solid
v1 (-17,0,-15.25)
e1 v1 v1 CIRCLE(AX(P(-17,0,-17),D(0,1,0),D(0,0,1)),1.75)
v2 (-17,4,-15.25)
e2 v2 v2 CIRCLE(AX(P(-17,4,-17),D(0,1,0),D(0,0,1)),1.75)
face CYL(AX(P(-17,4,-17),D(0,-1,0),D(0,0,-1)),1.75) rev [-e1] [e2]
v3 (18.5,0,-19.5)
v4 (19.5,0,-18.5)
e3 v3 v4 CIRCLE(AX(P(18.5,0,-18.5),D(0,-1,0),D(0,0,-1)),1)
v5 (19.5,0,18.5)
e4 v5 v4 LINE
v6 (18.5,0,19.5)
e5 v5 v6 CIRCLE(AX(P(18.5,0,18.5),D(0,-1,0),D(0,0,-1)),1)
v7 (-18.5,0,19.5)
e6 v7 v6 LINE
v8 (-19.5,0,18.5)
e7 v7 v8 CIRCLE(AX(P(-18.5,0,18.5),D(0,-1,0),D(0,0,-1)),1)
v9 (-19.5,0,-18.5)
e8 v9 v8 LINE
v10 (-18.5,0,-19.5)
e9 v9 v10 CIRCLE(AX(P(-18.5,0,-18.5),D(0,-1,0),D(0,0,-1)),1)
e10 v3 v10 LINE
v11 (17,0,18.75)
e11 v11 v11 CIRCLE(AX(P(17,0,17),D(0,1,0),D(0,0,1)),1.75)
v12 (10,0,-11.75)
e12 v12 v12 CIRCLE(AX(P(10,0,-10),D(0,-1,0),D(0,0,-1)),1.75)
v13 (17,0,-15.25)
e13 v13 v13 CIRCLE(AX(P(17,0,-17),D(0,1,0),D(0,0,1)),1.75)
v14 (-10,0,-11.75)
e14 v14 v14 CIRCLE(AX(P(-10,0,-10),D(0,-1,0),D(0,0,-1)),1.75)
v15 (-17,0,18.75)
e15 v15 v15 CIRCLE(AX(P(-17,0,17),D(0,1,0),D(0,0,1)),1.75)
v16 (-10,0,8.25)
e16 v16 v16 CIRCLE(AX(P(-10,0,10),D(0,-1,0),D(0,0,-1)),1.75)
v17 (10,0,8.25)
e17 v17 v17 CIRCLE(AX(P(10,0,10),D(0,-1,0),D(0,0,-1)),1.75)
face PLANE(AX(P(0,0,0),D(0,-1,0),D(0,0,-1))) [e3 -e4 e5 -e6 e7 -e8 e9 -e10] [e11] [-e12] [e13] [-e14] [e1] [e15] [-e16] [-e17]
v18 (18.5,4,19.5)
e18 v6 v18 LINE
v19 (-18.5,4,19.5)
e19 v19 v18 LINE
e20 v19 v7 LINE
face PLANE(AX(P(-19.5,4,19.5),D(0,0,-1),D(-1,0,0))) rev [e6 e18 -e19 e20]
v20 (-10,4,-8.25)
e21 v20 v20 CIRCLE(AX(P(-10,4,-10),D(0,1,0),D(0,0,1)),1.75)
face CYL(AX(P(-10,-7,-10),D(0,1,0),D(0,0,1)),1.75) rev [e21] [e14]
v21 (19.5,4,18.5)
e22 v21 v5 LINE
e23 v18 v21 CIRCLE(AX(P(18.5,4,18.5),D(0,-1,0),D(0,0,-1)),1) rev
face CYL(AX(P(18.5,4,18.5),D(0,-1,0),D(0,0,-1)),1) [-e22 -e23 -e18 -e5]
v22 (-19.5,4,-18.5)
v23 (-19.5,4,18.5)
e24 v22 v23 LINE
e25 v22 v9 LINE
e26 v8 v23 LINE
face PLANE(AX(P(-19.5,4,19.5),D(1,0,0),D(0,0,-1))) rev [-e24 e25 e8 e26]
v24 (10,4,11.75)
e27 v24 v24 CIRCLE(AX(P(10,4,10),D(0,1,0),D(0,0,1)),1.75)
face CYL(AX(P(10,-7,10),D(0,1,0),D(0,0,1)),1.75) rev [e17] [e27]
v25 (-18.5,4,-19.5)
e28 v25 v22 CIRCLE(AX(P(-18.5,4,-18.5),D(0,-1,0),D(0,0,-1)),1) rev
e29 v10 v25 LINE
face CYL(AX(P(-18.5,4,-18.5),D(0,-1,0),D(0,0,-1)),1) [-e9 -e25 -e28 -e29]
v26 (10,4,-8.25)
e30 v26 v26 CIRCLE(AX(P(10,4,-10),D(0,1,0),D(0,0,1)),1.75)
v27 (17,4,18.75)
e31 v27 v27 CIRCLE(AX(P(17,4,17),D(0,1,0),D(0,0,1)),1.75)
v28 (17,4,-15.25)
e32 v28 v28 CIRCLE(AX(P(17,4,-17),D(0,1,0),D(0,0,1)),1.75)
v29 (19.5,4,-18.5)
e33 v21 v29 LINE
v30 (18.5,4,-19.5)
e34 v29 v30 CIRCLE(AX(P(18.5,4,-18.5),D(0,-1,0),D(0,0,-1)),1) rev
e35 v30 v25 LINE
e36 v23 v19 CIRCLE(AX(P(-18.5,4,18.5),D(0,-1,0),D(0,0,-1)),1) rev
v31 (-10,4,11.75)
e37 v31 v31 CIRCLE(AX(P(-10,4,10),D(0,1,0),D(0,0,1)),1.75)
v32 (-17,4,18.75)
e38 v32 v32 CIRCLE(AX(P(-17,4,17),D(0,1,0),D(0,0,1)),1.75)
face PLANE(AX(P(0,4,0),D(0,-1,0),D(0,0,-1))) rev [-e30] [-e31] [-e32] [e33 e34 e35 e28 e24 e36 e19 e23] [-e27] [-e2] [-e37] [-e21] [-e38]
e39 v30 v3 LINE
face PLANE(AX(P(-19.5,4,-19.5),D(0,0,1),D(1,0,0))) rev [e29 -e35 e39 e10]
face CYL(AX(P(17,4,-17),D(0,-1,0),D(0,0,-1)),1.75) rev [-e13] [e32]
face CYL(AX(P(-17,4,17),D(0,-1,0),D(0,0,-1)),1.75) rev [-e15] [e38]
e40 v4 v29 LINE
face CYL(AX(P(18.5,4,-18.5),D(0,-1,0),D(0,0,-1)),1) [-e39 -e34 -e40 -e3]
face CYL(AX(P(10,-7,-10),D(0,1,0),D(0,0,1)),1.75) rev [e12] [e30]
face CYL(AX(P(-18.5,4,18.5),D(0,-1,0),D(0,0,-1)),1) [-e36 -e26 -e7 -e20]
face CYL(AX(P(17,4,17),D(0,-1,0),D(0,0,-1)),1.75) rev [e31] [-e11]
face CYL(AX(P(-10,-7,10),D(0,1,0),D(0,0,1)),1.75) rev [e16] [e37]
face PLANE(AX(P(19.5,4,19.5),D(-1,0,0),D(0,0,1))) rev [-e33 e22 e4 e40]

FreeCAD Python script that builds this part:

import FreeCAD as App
import Part
import Sketcher


def edges_at(feature, points):
    """Names of the edges that pass closest to the given points."""
    edges = feature.Shape.Edges
    near = lambda p: min(range(len(edges)), key=lambda i: edges[i].distToShape(Part.Vertex(*p))[0])
    return sorted({f"Edge{near(p) + 1}" for p in points})


def add_polygon(sketch, points):
    """Adds a closed chain of lines whose ends are joined by coincident constraints."""
    first, n = sketch.GeometryCount, len(points)
    for a, b in zip(points, points[1:] + points[:1]):
        sketch.addGeometry(Part.LineSegment(App.Vector(*a, 0), App.Vector(*b, 0)), False)
    for i in range(n):
        sketch.addConstraint(Sketcher.Constraint("Coincident", first + i, 2, first + (i + 1) % n, 1))

doc = App.newDocument("Part")
body = doc.addObject("PartDesign::Body", "Body")

sketch1 = body.newObject("Sketcher::SketchObject", "Sketch")
sketch1.AttachmentSupport = (doc.getObject("XZ_Plane"), [""])
sketch1.MapMode = "FlatFace"
add_polygon(sketch1, [(-19.5, -19.5), (-19.5, 19.5), (19.5, 19.5), (19.5, -19.5)])
sketch1.addGeometry(Part.Circle(App.Vector(-17, 17, 0), App.Vector(0, 0, 1), 1.8), False)
sketch1.addGeometry(Part.Circle(App.Vector(17, 17, 0), App.Vector(0, 0, 1), 1.8), False)
sketch1.addGeometry(Part.Circle(App.Vector(-17, -17, 0), App.Vector(0, 0, 1), 1.8), False)
sketch1.addGeometry(Part.Circle(App.Vector(17, -17, 0), App.Vector(0, 0, 1), 1.8), False)
sketch1.addConstraint([
    Sketcher.Constraint("Vertical", 0),
    Sketcher.Constraint("Horizontal", 1),
    Sketcher.Constraint("Vertical", 2),
    Sketcher.Constraint("Horizontal", 3),
    Sketcher.Constraint("Equal", 4, 5),
    Sketcher.Constraint("Equal", 5, 6),
    Sketcher.Constraint("Equal", 6, 7),
    Sketcher.Constraint("Symmetric", 5, 3, 6, 3, -1, 1),
    Sketcher.Constraint("Symmetric", 4, 3, 7, 3, -1, 1),
    Sketcher.Constraint("Symmetric", 0, 2, 2, 2, -1, 1),
    Sketcher.Constraint("Symmetric", 4, 3, 5, 3, -2),
    Sketcher.Constraint("Equal", 3, 0),
    Sketcher.Constraint("Diameter", 4, 3.5),
    Sketcher.Constraint("DistanceX", 1, 1, 1, 2, 39.0),
    Sketcher.Constraint("DistanceX", 4, 3, -1, 1, 17.0),
    Sketcher.Constraint("DistanceY", -1, 1, 4, 3, 17.0),
])
pad1 = body.newObject("PartDesign::Pad", "Pad")
pad1.Profile = sketch1
pad1.Length = 4
pad1.Reversed = True

sketch2 = body.newObject("Sketcher::SketchObject", "Sketch001")
sketch2.AttachmentSupport = (doc.getObject("XZ_Plane"), [""])
sketch2.MapMode = "FlatFace"
sketch2.AttachmentOffset = App.Placement(App.Vector(0, 0, -4), App.Rotation())
sketch2.addGeometry([
    Part.Circle(App.Vector(10, -10, 0), App.Vector(0, 0, 1), 1.8),
    Part.Circle(App.Vector(10, 10, 0), App.Vector(0, 0, 1), 1.8),
    Part.Circle(App.Vector(-10, 10, 0), App.Vector(0, 0, 1), 1.8),
    Part.Circle(App.Vector(-10, -10, 0), App.Vector(0, 0, 1), 1.8),
], False)
sketch2.addConstraint([
    Sketcher.Constraint("Equal", 0, 1),
    Sketcher.Constraint("Equal", 1, 2),
    Sketcher.Constraint("Equal", 2, 3),
    Sketcher.Constraint("Symmetric", 0, 3, 2, 3, -1, 1),
    Sketcher.Constraint("Symmetric", 1, 3, 3, 3, -1, 1),
    Sketcher.Constraint("Symmetric", 1, 3, 2, 3, -2),
    Sketcher.Constraint("Diameter", 0, 3.5),
    Sketcher.Constraint("DistanceX", -1, 1, 0, 3, 10.0),
    Sketcher.Constraint("DistanceY", 0, 3, -1, 1, 10.0),
])
pocket1 = body.newObject("PartDesign::Pocket", "Pocket")
pocket1.Profile = sketch2
pocket1.Length = 11
pocket1.Reversed = True
doc.recompute()

fillet = body.newObject("PartDesign::Fillet", "Fillet")
fillet.Base = (pocket1, edges_at(pocket1, [
    (19.5, 2, 19.5),
    (-19.5, 2, 19.5),
    (-19.5, 2, -19.5),
    (19.5, 2, -19.5),
]))
fillet.Radius = 1

doc.recompute()
